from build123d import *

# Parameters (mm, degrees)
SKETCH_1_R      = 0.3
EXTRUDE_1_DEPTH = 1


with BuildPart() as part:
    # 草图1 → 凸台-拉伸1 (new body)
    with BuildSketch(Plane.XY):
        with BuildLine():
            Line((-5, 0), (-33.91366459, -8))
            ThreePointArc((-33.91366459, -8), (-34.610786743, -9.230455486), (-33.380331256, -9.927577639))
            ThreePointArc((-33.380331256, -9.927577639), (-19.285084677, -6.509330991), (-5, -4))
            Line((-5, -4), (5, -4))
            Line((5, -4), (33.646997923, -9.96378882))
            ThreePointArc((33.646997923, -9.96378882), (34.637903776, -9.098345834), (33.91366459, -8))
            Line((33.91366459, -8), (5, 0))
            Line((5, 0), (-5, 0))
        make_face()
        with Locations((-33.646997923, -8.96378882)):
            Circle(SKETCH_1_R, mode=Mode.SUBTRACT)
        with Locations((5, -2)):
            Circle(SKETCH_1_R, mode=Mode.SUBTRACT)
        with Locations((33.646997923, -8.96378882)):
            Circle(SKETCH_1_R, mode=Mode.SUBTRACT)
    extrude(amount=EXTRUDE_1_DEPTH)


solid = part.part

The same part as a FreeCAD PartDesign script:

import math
import FreeCAD as App
import Part
import Sketcher
from FreeCAD import Vector
Q = App.Units.Quantity

doc = App.newDocument("Part")
body = doc.addObject("PartDesign::Body", "Body")

# Sketch on XY plane
sketch1 = doc.addObject("Sketcher::SketchObject", "Sketch")
body.addObject(sketch1)
sketch1.AttachmentSupport = (doc.XY_Plane, [""])
sketch1.MapMode = "FlatFace"
sketch1.addGeometry([
    Part.LineSegment(Vector(-5, 0, 0), Vector(-33.91, -8, 0)),  # 0
    Part.ArcOfCircle(Part.Circle(Vector(-33.65, -8.96, 0), Vector(0, 0, 1), 1), math.radians(105), math.radians(285)),  # 1
    Part.ArcOfCircle(Part.Circle(Vector(27.03, -228.28, 0), Vector(0, 0, 1), 226.55), math.radians(98.13), math.radians(105.47)),  # 2
    Part.LineSegment(Vector(-5, -4, 0), Vector(5, -4, 0)),  # 3
    Part.LineSegment(Vector(5, -4, 0), Vector(33.65, -9.96, 0)),  # 4
    Part.ArcOfCircle(Part.Circle(Vector(33.65, -8.96, 0), Vector(0, 0, 1), 1), math.radians(-90), math.radians(75)),  # 5
    Part.LineSegment(Vector(33.91, -8, 0), Vector(5, 0, 0)),  # 6
    Part.LineSegment(Vector(5, 0, 0), Vector(-5, 0, 0)),  # 7
    Part.Circle(Vector(-33.65, -8.96, 0), Vector(0, 0, 1), 0.3),  # 8
    Part.Circle(Vector(33.65, -8.96, 0), Vector(0, 0, 1), 0.3),  # 9
    Part.Circle(Vector(5, -2, 0), Vector(0, 0, 1), 0.3),  # 10
], False)
sketch1.addConstraint([
    Sketcher.Constraint("Tangent", 0, 2, 1, 1),
    Sketcher.Constraint("Tangent", 1, 2, 2, 2),
    Sketcher.Constraint("Coincident", 2, 1, 3, 1),
    Sketcher.Constraint("Coincident", 3, 2, 4, 1),
    Sketcher.Constraint("Coincident", 4, 2, 5, 1),
    Sketcher.Constraint("Tangent", 5, 2, 6, 1),
    Sketcher.Constraint("Coincident", 6, 2, 7, 1),
    Sketcher.Constraint("Coincident", 7, 2, 0, 1),
    Sketcher.Constraint("Horizontal", 3),
    Sketcher.Constraint("Horizontal", 7),
    Sketcher.Constraint("Coincident", 8, 3, 1, 3),
    Sketcher.Constraint("Coincident", 9, 3, 5, 3),
    Sketcher.Constraint("Equal", 1, 5),
    Sketcher.Constraint("Equal", 8, 9),
    Sketcher.Constraint("Equal", 9, 10),
    Sketcher.Constraint("Symmetric", 6, 2, 7, 2, -1, 1),
    Sketcher.Constraint("Symmetric", 1, 3, 5, 3, -2),
    Sketcher.Constraint("Vertical", 10, 3, 3, 2),
    Sketcher.Constraint("Vertical", 9, 3, 4, 2),
    Sketcher.Constraint("Vertical", 3, 2, 6, 2),
    Sketcher.Constraint("Vertical", 2, 1, 7, 2),
    Sketcher.Constraint("Radius", 1, Q("1 mm")),
    Sketcher.Constraint("Diameter", 8, Q("0.6 mm")),
    Sketcher.Constraint("DistanceX", 3, 1, 3, 2, Q("10 mm")),
    Sketcher.Constraint("Distance", 0, Q("30 mm")),
    Sketcher.Constraint("DistanceY", 10, 3, -1, 1, Q("2 mm")),
    Sketcher.Constraint("DistanceY", 0, 2, -1, 1, Q("8 mm")),
    Sketcher.Constraint("DistanceY", 2, 1, -1, 1, Q("4 mm")),
    Sketcher.Constraint("Radius", 2, Q("226.552297 mm")),
])
pad1 = doc.addObject("PartDesign::Pad", "Pad")
body.addObject(pad1)
pad1.Profile = sketch1
pad1.Length = 1

doc.recompute()
